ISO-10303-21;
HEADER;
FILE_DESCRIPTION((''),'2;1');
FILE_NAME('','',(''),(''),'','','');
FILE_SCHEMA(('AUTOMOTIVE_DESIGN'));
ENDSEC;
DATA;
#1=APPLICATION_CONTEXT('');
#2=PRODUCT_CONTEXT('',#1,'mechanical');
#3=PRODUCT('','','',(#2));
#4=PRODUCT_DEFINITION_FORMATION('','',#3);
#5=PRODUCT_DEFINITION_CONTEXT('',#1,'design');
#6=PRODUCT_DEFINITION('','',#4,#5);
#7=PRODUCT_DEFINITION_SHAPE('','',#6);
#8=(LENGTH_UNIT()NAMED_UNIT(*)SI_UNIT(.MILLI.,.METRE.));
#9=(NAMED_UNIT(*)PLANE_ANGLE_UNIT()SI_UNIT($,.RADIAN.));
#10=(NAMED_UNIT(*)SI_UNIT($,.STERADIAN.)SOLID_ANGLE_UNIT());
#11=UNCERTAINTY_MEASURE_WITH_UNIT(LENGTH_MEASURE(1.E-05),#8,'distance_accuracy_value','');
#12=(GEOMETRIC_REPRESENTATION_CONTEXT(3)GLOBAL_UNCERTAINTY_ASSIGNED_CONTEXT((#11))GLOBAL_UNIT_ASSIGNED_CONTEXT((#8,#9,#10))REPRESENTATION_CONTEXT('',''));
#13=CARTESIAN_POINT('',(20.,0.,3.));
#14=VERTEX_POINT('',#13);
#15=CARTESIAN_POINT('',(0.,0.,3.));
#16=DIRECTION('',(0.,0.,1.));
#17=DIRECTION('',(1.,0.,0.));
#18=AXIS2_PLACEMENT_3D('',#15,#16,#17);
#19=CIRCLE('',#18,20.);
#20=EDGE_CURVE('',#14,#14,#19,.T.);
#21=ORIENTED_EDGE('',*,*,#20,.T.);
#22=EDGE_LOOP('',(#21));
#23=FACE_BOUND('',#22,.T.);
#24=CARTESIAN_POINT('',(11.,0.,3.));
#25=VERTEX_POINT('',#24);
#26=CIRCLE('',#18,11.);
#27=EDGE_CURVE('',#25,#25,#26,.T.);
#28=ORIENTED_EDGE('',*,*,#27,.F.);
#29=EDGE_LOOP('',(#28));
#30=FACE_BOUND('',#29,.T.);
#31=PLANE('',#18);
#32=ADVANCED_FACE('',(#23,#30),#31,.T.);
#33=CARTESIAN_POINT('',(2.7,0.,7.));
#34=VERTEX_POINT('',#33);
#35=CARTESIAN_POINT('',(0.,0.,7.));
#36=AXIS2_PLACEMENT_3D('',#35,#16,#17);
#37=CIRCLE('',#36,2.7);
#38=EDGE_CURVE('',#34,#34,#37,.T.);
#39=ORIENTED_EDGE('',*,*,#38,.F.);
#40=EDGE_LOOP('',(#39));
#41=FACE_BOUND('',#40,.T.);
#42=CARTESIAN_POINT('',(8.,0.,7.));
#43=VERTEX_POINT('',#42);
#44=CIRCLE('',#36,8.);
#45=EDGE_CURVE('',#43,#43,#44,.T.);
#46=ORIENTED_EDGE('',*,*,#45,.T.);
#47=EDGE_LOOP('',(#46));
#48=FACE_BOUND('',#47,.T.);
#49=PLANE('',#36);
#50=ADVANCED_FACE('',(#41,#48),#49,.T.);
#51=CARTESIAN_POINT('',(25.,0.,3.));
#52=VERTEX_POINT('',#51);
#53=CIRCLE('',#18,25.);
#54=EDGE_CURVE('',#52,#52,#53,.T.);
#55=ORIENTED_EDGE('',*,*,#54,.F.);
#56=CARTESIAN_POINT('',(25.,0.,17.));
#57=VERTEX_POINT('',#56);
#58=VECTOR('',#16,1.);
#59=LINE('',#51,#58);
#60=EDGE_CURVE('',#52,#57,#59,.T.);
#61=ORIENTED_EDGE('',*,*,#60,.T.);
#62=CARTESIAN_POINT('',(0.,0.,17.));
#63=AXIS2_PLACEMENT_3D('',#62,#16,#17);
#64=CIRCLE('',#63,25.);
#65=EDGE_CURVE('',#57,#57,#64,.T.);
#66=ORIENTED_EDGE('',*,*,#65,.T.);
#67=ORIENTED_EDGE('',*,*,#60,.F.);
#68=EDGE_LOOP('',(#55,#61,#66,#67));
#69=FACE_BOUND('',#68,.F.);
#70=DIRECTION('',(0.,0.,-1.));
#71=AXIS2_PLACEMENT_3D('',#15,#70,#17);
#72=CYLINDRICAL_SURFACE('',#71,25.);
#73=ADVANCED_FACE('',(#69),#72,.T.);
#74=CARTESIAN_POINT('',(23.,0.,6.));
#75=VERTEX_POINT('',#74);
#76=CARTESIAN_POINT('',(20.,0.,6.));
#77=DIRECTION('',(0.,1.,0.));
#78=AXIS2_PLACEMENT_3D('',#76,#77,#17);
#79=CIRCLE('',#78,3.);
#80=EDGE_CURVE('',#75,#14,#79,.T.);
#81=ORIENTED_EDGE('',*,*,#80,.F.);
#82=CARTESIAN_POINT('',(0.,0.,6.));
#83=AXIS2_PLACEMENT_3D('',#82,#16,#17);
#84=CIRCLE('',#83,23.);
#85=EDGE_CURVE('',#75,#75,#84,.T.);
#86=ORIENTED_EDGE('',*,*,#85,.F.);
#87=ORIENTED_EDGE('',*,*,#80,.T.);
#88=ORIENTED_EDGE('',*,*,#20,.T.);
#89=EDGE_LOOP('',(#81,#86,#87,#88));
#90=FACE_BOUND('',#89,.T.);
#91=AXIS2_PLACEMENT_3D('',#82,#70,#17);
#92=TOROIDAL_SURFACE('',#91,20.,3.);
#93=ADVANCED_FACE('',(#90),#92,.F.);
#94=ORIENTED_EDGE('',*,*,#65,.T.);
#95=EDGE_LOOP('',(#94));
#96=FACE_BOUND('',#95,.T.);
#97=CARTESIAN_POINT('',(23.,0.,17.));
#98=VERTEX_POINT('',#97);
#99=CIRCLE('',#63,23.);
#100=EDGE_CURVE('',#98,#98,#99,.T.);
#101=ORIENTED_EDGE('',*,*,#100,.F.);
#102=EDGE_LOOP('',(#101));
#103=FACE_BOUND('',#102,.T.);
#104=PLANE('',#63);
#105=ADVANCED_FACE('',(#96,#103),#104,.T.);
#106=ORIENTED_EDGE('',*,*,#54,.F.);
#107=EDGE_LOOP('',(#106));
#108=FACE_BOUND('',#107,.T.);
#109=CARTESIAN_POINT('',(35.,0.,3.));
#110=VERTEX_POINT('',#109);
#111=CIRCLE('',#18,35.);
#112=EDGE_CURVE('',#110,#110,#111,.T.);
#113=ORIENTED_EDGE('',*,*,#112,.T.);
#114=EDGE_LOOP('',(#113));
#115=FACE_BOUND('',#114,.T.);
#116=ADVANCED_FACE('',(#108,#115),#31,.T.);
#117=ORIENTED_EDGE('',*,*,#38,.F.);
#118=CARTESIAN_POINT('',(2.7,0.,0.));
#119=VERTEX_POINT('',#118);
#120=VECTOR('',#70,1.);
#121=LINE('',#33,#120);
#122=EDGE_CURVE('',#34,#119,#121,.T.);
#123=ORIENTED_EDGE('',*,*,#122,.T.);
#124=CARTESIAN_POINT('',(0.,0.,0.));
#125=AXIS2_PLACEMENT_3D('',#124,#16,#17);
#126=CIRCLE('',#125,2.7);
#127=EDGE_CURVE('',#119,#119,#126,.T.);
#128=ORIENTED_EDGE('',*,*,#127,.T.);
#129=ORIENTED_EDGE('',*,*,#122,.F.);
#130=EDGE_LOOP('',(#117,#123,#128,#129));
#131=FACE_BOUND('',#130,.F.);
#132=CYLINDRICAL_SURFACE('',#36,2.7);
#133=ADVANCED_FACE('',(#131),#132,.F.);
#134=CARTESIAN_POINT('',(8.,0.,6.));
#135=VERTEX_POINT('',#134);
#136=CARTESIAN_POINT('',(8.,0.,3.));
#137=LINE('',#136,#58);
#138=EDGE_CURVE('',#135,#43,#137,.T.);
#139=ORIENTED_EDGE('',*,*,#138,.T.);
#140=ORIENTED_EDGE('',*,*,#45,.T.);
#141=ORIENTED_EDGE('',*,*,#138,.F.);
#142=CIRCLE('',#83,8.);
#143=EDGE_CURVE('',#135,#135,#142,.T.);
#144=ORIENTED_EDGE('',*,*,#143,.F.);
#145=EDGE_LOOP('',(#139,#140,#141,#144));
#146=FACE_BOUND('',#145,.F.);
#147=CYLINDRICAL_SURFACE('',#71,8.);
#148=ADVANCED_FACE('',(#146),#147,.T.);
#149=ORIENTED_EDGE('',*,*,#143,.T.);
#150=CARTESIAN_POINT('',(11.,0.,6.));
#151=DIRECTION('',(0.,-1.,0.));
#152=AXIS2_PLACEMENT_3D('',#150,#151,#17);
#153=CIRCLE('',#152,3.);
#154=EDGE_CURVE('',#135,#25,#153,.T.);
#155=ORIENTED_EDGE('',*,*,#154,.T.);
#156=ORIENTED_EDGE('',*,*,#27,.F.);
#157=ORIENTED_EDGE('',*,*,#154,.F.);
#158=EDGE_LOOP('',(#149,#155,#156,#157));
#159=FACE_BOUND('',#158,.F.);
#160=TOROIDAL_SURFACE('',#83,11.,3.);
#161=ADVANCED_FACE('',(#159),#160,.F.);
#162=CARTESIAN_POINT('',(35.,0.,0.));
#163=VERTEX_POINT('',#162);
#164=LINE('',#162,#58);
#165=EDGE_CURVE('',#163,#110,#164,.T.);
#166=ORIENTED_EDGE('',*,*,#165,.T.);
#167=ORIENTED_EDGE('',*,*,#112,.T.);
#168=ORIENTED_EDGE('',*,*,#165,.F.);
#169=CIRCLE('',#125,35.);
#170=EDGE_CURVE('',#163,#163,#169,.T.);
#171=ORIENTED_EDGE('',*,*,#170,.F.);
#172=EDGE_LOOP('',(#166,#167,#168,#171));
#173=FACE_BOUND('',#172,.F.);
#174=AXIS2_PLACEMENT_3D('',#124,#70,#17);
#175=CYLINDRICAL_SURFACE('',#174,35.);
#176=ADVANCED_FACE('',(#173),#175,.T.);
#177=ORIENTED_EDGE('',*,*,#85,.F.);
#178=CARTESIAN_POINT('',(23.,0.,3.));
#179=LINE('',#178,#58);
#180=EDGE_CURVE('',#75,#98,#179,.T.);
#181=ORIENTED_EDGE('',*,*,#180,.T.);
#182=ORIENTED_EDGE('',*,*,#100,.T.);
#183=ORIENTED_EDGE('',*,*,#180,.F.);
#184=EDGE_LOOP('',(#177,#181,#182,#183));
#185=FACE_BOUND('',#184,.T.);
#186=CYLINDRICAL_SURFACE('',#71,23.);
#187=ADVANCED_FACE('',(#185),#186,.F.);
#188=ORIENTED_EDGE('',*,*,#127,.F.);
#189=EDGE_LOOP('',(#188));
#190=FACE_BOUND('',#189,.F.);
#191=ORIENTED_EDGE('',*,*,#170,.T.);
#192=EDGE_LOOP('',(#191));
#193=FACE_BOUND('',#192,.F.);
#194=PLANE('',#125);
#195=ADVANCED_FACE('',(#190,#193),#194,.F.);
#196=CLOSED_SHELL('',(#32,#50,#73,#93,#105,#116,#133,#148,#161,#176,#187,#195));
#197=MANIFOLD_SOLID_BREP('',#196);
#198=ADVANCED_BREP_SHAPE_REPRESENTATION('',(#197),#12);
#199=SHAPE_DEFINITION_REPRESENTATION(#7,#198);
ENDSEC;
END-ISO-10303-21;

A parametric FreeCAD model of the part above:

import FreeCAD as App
import Part
import Sketcher

V = App.Vector
Q = App.Units.Quantity


def edges_at(feature, points):
    """Names of the edges that pass closest to the given points."""
    edges = feature.Shape.Edges
    near = lambda p: min(range(len(edges)), key=lambda i: edges[i].distToShape(Part.Vertex(*p))[0])
    return sorted({f"Edge{near(p) + 1}" for p in points})

doc = App.newDocument("Part")
body = doc.addObject("PartDesign::Body", "Body")

# Sketch on XY plane
sketch1 = body.newObject("Sketcher::SketchObject", "Sketch")
sketch1.AttachmentSupport = (doc.getObject("XY_Plane"), [""])
sketch1.MapMode = "FlatFace"
sketch1.addGeometry(Part.Circle(V(0, 0, 0), V(0, 0, 1), 35), False)
sketch1.addConstraint([
    Sketcher.Constraint("Coincident", 0, 3, -1, 1),
    Sketcher.Constraint("Diameter", 0, Q("70 mm")),
])
pad1 = body.newObject("PartDesign::Pad", "Pad")
pad1.Profile = sketch1
pad1.Length = 3

# Sketch on XY plane
sketch2 = body.newObject("Sketcher::SketchObject", "Sketch001")
sketch2.AttachmentSupport = (doc.getObject("XY_Plane"), [""])
sketch2.MapMode = "FlatFace"
sketch2.AttachmentOffset = App.Placement(V(0, 0, 3), App.Rotation())
sketch2.addGeometry([
    Part.Circle(V(0, 0, 0), V(0, 0, 1), 25),
    Part.Circle(V(0, 0, 0), V(0, 0, 1), 23),
], False)
sketch2.addConstraint([
    Sketcher.Constraint("Coincident", 0, 3, -1, 1),
    Sketcher.Constraint("Coincident", 1, 3, -1, 1),
    Sketcher.Constraint("Diameter", 0, Q("50 mm")),
    Sketcher.Constraint("Diameter", 1, Q("46 mm")),
])
pad2 = body.newObject("PartDesign::Pad", "Pad001")
pad2.Profile = sketch2
pad2.Length = 14

# Sketch on XY plane
sketch3 = body.newObject("Sketcher::SketchObject", "Sketch002")
sketch3.AttachmentSupport = (doc.getObject("XY_Plane"), [""])
sketch3.MapMode = "FlatFace"
sketch3.AttachmentOffset = App.Placement(V(0, 0, 3), App.Rotation())
sketch3.addGeometry(Part.Circle(V(0, 0, 0), V(0, 0, 1), 8), False)
sketch3.addConstraint([
    Sketcher.Constraint("Coincident", 0, 3, -1, 1),
    Sketcher.Constraint("Diameter", 0, Q("16 mm")),
])
pad3 = body.newObject("PartDesign::Pad", "Pad002")
pad3.Profile = sketch3
pad3.Length = 4

# Sketch on XY plane
sketch4 = body.newObject("Sketcher::SketchObject", "Sketch003")
sketch4.AttachmentSupport = (doc.getObject("XY_Plane"), [""])
sketch4.MapMode = "FlatFace"
sketch4.AttachmentOffset = App.Placement(V(0, 0, 7), App.Rotation())
sketch4.addGeometry(Part.Circle(V(0, 0, 0), V(0, 0, 1), 2.7), False)
sketch4.addConstraint([
    Sketcher.Constraint("Coincident", 0, 3, -1, 1),
    Sketcher.Constraint("Diameter", 0, Q("5.4 mm")),
])
pocket1 = body.newObject("PartDesign::Pocket", "Pocket")
pocket1.Profile = sketch4
pocket1.Length = 25
doc.recompute()

fillet = body.newObject("PartDesign::Fillet", "Fillet")
fillet.Base = (pocket1, edges_at(pocket1, [(-23, 0, 3), (-8, 0, 3)]))
fillet.Radius = 3

doc.recompute()
